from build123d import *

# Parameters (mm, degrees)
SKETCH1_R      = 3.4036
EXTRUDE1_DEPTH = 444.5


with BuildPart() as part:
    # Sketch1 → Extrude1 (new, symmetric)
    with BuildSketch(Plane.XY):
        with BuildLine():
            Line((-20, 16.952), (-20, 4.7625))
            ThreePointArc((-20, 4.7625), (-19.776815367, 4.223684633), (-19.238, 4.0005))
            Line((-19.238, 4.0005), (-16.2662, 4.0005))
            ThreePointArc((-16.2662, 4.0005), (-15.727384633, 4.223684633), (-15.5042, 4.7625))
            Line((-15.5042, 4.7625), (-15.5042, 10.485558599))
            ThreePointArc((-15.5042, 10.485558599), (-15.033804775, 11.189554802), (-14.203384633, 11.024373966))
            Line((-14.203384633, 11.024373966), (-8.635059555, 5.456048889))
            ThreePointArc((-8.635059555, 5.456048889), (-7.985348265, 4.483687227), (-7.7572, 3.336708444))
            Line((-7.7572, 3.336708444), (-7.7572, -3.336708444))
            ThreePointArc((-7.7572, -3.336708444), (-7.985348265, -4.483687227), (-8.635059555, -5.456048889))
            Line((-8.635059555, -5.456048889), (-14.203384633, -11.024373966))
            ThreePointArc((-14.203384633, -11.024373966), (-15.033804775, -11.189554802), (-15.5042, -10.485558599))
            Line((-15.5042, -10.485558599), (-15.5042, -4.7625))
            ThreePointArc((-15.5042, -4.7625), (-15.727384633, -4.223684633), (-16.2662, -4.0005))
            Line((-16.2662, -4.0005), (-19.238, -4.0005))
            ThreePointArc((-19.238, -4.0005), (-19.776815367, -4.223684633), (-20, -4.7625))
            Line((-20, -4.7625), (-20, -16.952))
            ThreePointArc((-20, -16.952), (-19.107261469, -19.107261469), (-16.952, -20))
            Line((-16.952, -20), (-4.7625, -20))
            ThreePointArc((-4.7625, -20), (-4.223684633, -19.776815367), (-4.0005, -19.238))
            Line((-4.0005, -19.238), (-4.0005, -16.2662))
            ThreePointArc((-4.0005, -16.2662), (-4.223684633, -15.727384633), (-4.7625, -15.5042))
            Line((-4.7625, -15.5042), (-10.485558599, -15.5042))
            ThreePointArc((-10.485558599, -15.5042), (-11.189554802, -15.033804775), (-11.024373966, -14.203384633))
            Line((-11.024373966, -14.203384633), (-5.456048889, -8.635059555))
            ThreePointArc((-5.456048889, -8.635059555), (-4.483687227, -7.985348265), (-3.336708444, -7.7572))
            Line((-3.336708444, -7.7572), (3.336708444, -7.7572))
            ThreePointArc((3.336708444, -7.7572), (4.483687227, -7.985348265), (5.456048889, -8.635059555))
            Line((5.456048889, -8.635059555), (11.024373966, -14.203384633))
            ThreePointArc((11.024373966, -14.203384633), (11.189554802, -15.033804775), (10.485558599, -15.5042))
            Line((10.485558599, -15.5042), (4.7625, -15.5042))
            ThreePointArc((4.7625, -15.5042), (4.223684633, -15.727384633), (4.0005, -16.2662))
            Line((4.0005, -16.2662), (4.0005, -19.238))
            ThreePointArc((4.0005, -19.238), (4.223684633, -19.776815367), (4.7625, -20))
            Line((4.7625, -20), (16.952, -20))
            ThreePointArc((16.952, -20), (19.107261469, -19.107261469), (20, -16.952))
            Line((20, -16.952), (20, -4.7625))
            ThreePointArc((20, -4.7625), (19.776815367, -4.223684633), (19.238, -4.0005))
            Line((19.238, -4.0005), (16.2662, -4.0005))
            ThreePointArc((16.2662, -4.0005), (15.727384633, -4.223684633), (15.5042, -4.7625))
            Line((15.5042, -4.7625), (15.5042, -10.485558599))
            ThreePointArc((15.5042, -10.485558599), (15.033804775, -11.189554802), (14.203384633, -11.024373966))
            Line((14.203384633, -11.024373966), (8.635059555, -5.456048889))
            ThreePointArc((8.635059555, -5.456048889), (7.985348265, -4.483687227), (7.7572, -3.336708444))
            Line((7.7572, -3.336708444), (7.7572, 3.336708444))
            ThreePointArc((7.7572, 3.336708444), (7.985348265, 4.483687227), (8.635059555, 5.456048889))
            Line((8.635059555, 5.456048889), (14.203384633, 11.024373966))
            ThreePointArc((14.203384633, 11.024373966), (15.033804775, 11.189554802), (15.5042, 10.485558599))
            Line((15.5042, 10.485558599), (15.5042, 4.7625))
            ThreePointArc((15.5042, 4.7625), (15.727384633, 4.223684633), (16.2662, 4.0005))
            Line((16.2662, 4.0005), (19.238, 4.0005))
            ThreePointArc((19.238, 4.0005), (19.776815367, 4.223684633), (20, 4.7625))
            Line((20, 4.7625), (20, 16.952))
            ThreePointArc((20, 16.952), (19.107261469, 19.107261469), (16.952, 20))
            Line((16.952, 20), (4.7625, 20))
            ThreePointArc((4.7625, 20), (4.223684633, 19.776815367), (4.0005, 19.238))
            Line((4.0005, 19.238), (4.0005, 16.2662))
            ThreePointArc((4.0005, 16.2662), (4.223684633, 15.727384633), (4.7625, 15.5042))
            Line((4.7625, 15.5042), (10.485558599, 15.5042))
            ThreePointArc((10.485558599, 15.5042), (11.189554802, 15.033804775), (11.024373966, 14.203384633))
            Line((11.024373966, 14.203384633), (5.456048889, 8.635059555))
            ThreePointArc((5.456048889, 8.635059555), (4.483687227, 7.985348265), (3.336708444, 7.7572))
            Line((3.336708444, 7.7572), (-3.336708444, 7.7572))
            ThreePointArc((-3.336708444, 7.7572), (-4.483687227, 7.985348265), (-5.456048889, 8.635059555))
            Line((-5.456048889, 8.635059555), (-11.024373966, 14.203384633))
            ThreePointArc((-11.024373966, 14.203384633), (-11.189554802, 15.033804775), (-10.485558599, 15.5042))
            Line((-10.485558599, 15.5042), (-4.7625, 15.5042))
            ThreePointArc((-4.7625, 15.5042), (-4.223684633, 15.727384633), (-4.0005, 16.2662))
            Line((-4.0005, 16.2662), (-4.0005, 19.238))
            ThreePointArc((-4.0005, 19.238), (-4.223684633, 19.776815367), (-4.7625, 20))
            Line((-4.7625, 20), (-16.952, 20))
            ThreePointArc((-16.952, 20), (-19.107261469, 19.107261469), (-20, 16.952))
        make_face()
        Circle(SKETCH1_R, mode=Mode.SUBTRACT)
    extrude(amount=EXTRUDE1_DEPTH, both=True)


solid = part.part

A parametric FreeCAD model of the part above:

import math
import FreeCAD as App
import Part
import Sketcher

V = App.Vector
Q = App.Units.Quantity

doc = App.newDocument("Part")
body = doc.addObject("PartDesign::Body", "Body")

# Sketch on XY plane
sketch1 = doc.addObject("Sketcher::SketchObject", "Sketch")
body.addObject(sketch1)
sketch1.AttachmentSupport = (doc.XY_Plane, [""])
sketch1.MapMode = "FlatFace"
sketch1.addGeometry([
    Part.LineSegment(V(-20, 16.952, 0), V(-20, 4.7625, 0)),  # 0
    Part.ArcOfCircle(Part.Circle(V(-19.238, 4.7625, 0), V(0, 0, 1), 0.762), math.radians(-180), math.radians(-90)),  # 1
    Part.LineSegment(V(-19.238, 4.0005, 0), V(-16.2662, 4.0005, 0)),  # 2
    Part.ArcOfCircle(Part.Circle(V(-16.2662, 4.7625, 0), V(0, 0, 1), 0.762), math.radians(-90), math.radians(0)),  # 3
    Part.LineSegment(V(-15.5042, 4.7625, 0), V(-15.5042, 10.485559, 0)),  # 4
    Part.ArcOfCircle(Part.Circle(V(-14.7422, 10.485559, 0), V(0, 0, 1), 0.762), math.radians(45), math.radians(180)),  # 5
    Part.LineSegment(V(-14.203385, 11.024374, 0), V(-8.63506, 5.456049, 0)),  # 6
    Part.ArcOfCircle(Part.Circle(V(-10.7544, 3.336708, 0), V(0, 0, 1), 2.9972), math.radians(0), math.radians(45)),  # 7
    Part.LineSegment(V(-7.7572, 3.336708, 0), V(-7.7572, -3.336708, 0)),  # 8
    Part.ArcOfCircle(Part.Circle(V(-10.7544, -3.336708, 0), V(0, 0, 1), 2.9972), math.radians(-45), math.radians(0)),  # 9
    Part.LineSegment(V(-8.63506, -5.456049, 0), V(-14.203385, -11.024374, 0)),  # 10
    Part.ArcOfCircle(Part.Circle(V(-14.7422, -10.485559, 0), V(0, 0, 1), 0.762), math.radians(-180), math.radians(-45)),  # 11
    Part.LineSegment(V(-15.5042, -10.485559, 0), V(-15.5042, -4.7625, 0)),  # 12
    Part.ArcOfCircle(Part.Circle(V(-16.2662, -4.7625, 0), V(0, 0, 1), 0.762), math.radians(0), math.radians(90)),  # 13
    Part.LineSegment(V(-16.2662, -4.0005, 0), V(-19.238, -4.0005, 0)),  # 14
    Part.ArcOfCircle(Part.Circle(V(-19.238, -4.7625, 0), V(0, 0, 1), 0.762), math.radians(90), math.radians(180)),  # 15
    Part.LineSegment(V(-20, -4.7625, 0), V(-20, -16.952, 0)),  # 16
    Part.ArcOfCircle(Part.Circle(V(-16.952, -16.952, 0), V(0, 0, 1), 3.048), math.radians(180), math.radians(270)),  # 17
    Part.LineSegment(V(-16.952, -20, 0), V(-4.7625, -20, 0)),  # 18
    Part.ArcOfCircle(Part.Circle(V(-4.7625, -19.238, 0), V(0, 0, 1), 0.762), math.radians(-90), math.radians(0)),  # 19
    Part.LineSegment(V(-4.0005, -19.238, 0), V(-4.0005, -16.2662, 0)),  # 20
    Part.ArcOfCircle(Part.Circle(V(-4.7625, -16.2662, 0), V(0, 0, 1), 0.762), math.radians(0), math.radians(90)),  # 21
    Part.LineSegment(V(-4.7625, -15.5042, 0), V(-10.485559, -15.5042, 0)),  # 22
    Part.ArcOfCircle(Part.Circle(V(-10.485559, -14.7422, 0), V(0, 0, 1), 0.762), math.radians(135), math.radians(270)),  # 23
    Part.LineSegment(V(-11.024374, -14.203385, 0), V(-5.456049, -8.63506, 0)),  # 24
    Part.ArcOfCircle(Part.Circle(V(-3.336708, -10.7544, 0), V(0, 0, 1), 2.9972), math.radians(90), math.radians(135)),  # 25
    Part.LineSegment(V(-3.336708, -7.7572, 0), V(3.336708, -7.7572, 0)),  # 26
    Part.ArcOfCircle(Part.Circle(V(3.336708, -10.7544, 0), V(0, 0, 1), 2.9972), math.radians(45), math.radians(90)),  # 27
    Part.LineSegment(V(5.456049, -8.63506, 0), V(11.024374, -14.203385, 0)),  # 28
    Part.ArcOfCircle(Part.Circle(V(10.485559, -14.7422, 0), V(0, 0, 1), 0.762), math.radians(-90), math.radians(45)),  # 29
    Part.LineSegment(V(10.485559, -15.5042, 0), V(4.7625, -15.5042, 0)),  # 30
    Part.ArcOfCircle(Part.Circle(V(4.7625, -16.2662, 0), V(0, 0, 1), 0.762), math.radians(90), math.radians(180)),  # 31
    Part.LineSegment(V(4.0005, -16.2662, 0), V(4.0005, -19.238, 0)),  # 32
    Part.ArcOfCircle(Part.Circle(V(4.7625, -19.238, 0), V(0, 0, 1), 0.762), math.radians(-180), math.radians(-90)),  # 33
    Part.LineSegment(V(4.7625, -20, 0), V(16.952, -20, 0)),  # 34
    Part.ArcOfCircle(Part.Circle(V(16.952, -16.952, 0), V(0, 0, 1), 3.048), math.radians(-90), math.radians(0)),  # 35
    Part.LineSegment(V(20, -16.952, 0), V(20, -4.7625, 0)),  # 36
    Part.ArcOfCircle(Part.Circle(V(19.238, -4.7625, 0), V(0, 0, 1), 0.762), math.radians(0), math.radians(90)),  # 37
    Part.LineSegment(V(19.238, -4.0005, 0), V(16.2662, -4.0005, 0)),  # 38
    Part.ArcOfCircle(Part.Circle(V(16.2662, -4.7625, 0), V(0, 0, 1), 0.762), math.radians(90), math.radians(180)),  # 39
    Part.LineSegment(V(15.5042, -4.7625, 0), V(15.5042, -10.485559, 0)),  # 40
    Part.ArcOfCircle(Part.Circle(V(14.7422, -10.485559, 0), V(0, 0, 1), 0.762), math.radians(-135), math.radians(0)),  # 41
    Part.LineSegment(V(14.203385, -11.024374, 0), V(8.63506, -5.456049, 0)),  # 42
    Part.ArcOfCircle(Part.Circle(V(10.7544, -3.336708, 0), V(0, 0, 1), 2.9972), math.radians(-180), math.radians(-135)),  # 43
    Part.LineSegment(V(7.7572, -3.336708, 0), V(7.7572, 3.336708, 0)),  # 44
    Part.ArcOfCircle(Part.Circle(V(10.7544, 3.336708, 0), V(0, 0, 1), 2.9972), math.radians(135), math.radians(180)),  # 45
    Part.LineSegment(V(8.63506, 5.456049, 0), V(14.203385, 11.024374, 0)),  # 46
    Part.ArcOfCircle(Part.Circle(V(14.7422, 10.485559, 0), V(0, 0, 1), 0.762), math.radians(0), math.radians(135)),  # 47
    Part.LineSegment(V(15.5042, 10.485559, 0), V(15.5042, 4.7625, 0)),  # 48
    Part.ArcOfCircle(Part.Circle(V(16.2662, 4.7625, 0), V(0, 0, 1), 0.762), math.radians(-180), math.radians(-90)),  # 49
    Part.LineSegment(V(16.2662, 4.0005, 0), V(19.238, 4.0005, 0)),  # 50
    Part.ArcOfCircle(Part.Circle(V(19.238, 4.7625, 0), V(0, 0, 1), 0.762), math.radians(-90), math.radians(0)),  # 51
    Part.LineSegment(V(20, 4.7625, 0), V(20, 16.952, 0)),  # 52
    Part.ArcOfCircle(Part.Circle(V(16.952, 16.952, 0), V(0, 0, 1), 3.048), math.radians(0), math.radians(90)),  # 53
    Part.LineSegment(V(16.952, 20, 0), V(4.7625, 20, 0)),  # 54
    Part.ArcOfCircle(Part.Circle(V(4.7625, 19.238, 0), V(0, 0, 1), 0.762), math.radians(90), math.radians(180)),  # 55
    Part.LineSegment(V(4.0005, 19.238, 0), V(4.0005, 16.2662, 0)),  # 56
    Part.ArcOfCircle(Part.Circle(V(4.7625, 16.2662, 0), V(0, 0, 1), 0.762), math.radians(-180), math.radians(-90)),  # 57
    Part.LineSegment(V(4.7625, 15.5042, 0), V(10.485559, 15.5042, 0)),  # 58
    Part.ArcOfCircle(Part.Circle(V(10.485559, 14.7422, 0), V(0, 0, 1), 0.762), math.radians(-45), math.radians(90)),  # 59
    Part.LineSegment(V(11.024374, 14.203385, 0), V(5.456049, 8.63506, 0)),  # 60
    Part.ArcOfCircle(Part.Circle(V(3.336708, 10.7544, 0), V(0, 0, 1), 2.9972), math.radians(-90), math.radians(-45)),  # 61
    Part.LineSegment(V(3.336708, 7.7572, 0), V(-3.336708, 7.7572, 0)),  # 62
    Part.ArcOfCircle(Part.Circle(V(-3.336708, 10.7544, 0), V(0, 0, 1), 2.9972), math.radians(-135), math.radians(-90)),  # 63
    Part.LineSegment(V(-5.456049, 8.63506, 0), V(-11.024374, 14.203385, 0)),  # 64
    Part.ArcOfCircle(Part.Circle(V(-10.485559, 14.7422, 0), V(0, 0, 1), 0.762), math.radians(90), math.radians(225)),  # 65
    Part.LineSegment(V(-10.485559, 15.5042, 0), V(-4.7625, 15.5042, 0)),  # 66
    Part.ArcOfCircle(Part.Circle(V(-4.7625, 16.2662, 0), V(0, 0, 1), 0.762), math.radians(-90), math.radians(0)),  # 67
    Part.LineSegment(V(-4.0005, 16.2662, 0), V(-4.0005, 19.238, 0)),  # 68
    Part.ArcOfCircle(Part.Circle(V(-4.7625, 19.238, 0), V(0, 0, 1), 0.762), math.radians(0), math.radians(90)),  # 69
    Part.LineSegment(V(-4.7625, 20, 0), V(-16.952, 20, 0)),  # 70
    Part.ArcOfCircle(Part.Circle(V(-16.952, 16.952, 0), V(0, 0, 1), 3.048), math.radians(90), math.radians(180)),  # 71
    Part.Circle(V(0, 0, 0), V(0, 0, 1), 3.4036),  # 72
], False)
sketch1.addConstraint([
    Sketcher.Constraint("Tangent", 0, 2, 1, 1),
    Sketcher.Constraint("Tangent", 1, 2, 2, 1),
    Sketcher.Constraint("Tangent", 2, 2, 3, 1),
    Sketcher.Constraint("Tangent", 3, 2, 4, 1),
    Sketcher.Constraint("Tangent", 4, 2, 5, 2),
    Sketcher.Constraint("Tangent", 5, 1, 6, 1),
    Sketcher.Constraint("Tangent", 6, 2, 7, 2),
    Sketcher.Constraint("Tangent", 7, 1, 8, 1),
    Sketcher.Constraint("Tangent", 8, 2, 9, 2),
    Sketcher.Constraint("Tangent", 9, 1, 10, 1),
    Sketcher.Constraint("Tangent", 10, 2, 11, 2),
    Sketcher.Constraint("Tangent", 11, 1, 12, 1),
    Sketcher.Constraint("Tangent", 12, 2, 13, 1),
    Sketcher.Constraint("Tangent", 13, 2, 14, 1),
    Sketcher.Constraint("Tangent", 14, 2, 15, 1),
    Sketcher.Constraint("Tangent", 15, 2, 16, 1),
    Sketcher.Constraint("Tangent", 16, 2, 17, 1),
    Sketcher.Constraint("Tangent", 17, 2, 18, 1),
    Sketcher.Constraint("Tangent", 18, 2, 19, 1),
    Sketcher.Constraint("Tangent", 19, 2, 20, 1),
    Sketcher.Constraint("Tangent", 20, 2, 21, 1),
    Sketcher.Constraint("Tangent", 21, 2, 22, 1),
    Sketcher.Constraint("Tangent", 22, 2, 23, 2),
    Sketcher.Constraint("Tangent", 23, 1, 24, 1),
    Sketcher.Constraint("Tangent", 24, 2, 25, 2),
    Sketcher.Constraint("Tangent", 25, 1, 26, 1),
    Sketcher.Constraint("Tangent", 26, 2, 27, 2),
    Sketcher.Constraint("Tangent", 27, 1, 28, 1),
    Sketcher.Constraint("Tangent", 28, 2, 29, 2),
    Sketcher.Constraint("Tangent", 29, 1, 30, 1),
    Sketcher.Constraint("Tangent", 30, 2, 31, 1),
    Sketcher.Constraint("Tangent", 31, 2, 32, 1),
    Sketcher.Constraint("Tangent", 32, 2, 33, 1),
    Sketcher.Constraint("Tangent", 33, 2, 34, 1),
    Sketcher.Constraint("Tangent", 34, 2, 35, 1),
    Sketcher.Constraint("Tangent", 35, 2, 36, 1),
    Sketcher.Constraint("Tangent", 36, 2, 37, 1),
    Sketcher.Constraint("Tangent", 37, 2, 38, 1),
    Sketcher.Constraint("Tangent", 38, 2, 39, 1),
    Sketcher.Constraint("Tangent", 39, 2, 40, 1),
    Sketcher.Constraint("Tangent", 40, 2, 41, 2),
    Sketcher.Constraint("Tangent", 41, 1, 42, 1),
    Sketcher.Constraint("Tangent", 42, 2, 43, 2),
    Sketcher.Constraint("Tangent", 43, 1, 44, 1),
    Sketcher.Constraint("Tangent", 44, 2, 45, 2),
    Sketcher.Constraint("Tangent", 45, 1, 46, 1),
    Sketcher.Constraint("Tangent", 46, 2, 47, 2),
    Sketcher.Constraint("Tangent", 47, 1, 48, 1),
    Sketcher.Constraint("Tangent", 48, 2, 49, 1),
    Sketcher.Constraint("Tangent", 49, 2, 50, 1),
    Sketcher.Constraint("Tangent", 50, 2, 51, 1),
    Sketcher.Constraint("Tangent", 51, 2, 52, 1),
    Sketcher.Constraint("Tangent", 52, 2, 53, 1),
    Sketcher.Constraint("Tangent", 53, 2, 54, 1),
    Sketcher.Constraint("Tangent", 54, 2, 55, 1),
    Sketcher.Constraint("Tangent", 55, 2, 56, 1),
    Sketcher.Constraint("Tangent", 56, 2, 57, 1),
    Sketcher.Constraint("Tangent", 57, 2, 58, 1),
    Sketcher.Constraint("Tangent", 58, 2, 59, 2),
    Sketcher.Constraint("Tangent", 59, 1, 60, 1),
    Sketcher.Constraint("Tangent", 60, 2, 61, 2),
    Sketcher.Constraint("Tangent", 61, 1, 62, 1),
    Sketcher.Constraint("Tangent", 62, 2, 63, 2),
    Sketcher.Constraint("Tangent", 63, 1, 64, 1),
    Sketcher.Constraint("Tangent", 64, 2, 65, 2),
    Sketcher.Constraint("Tangent", 65, 1, 66, 1),
    Sketcher.Constraint("Tangent", 66, 2, 67, 1),
    Sketcher.Constraint("Tangent", 67, 2, 68, 1),
    Sketcher.Constraint("Tangent", 68, 2, 69, 1),
    Sketcher.Constraint("Tangent", 69, 2, 70, 1),
    Sketcher.Constraint("Tangent", 70, 2, 71, 1),
    Sketcher.Constraint("Tangent", 71, 2, 0, 1),
    Sketcher.Constraint("Vertical", 0),
    Sketcher.Constraint("Horizontal", 2),
    Sketcher.Constraint("Vertical", 4),
    Sketcher.Constraint("Vertical", 8),
    Sketcher.Constraint("Vertical", 12),
    Sketcher.Constraint("Horizontal", 14),
    Sketcher.Constraint("Vertical", 16),
    Sketcher.Constraint("Horizontal", 18),
    Sketcher.Constraint("Vertical", 20),
    Sketcher.Constraint("Horizontal", 22),
    Sketcher.Constraint("Horizontal", 26),
    Sketcher.Constraint("Horizontal", 30),
    Sketcher.Constraint("Vertical", 32),
    Sketcher.Constraint("Horizontal", 34),
    Sketcher.Constraint("Vertical", 36),
    Sketcher.Constraint("Horizontal", 38),
    Sketcher.Constraint("Vertical", 40),
    Sketcher.Constraint("Vertical", 44),
    Sketcher.Constraint("Vertical", 48),
    Sketcher.Constraint("Horizontal", 50),
    Sketcher.Constraint("Vertical", 52),
    Sketcher.Constraint("Horizontal", 54),
    Sketcher.Constraint("Vertical", 56),
    Sketcher.Constraint("Horizontal", 58),
    Sketcher.Constraint("Horizontal", 62),
    Sketcher.Constraint("Horizontal", 66),
    Sketcher.Constraint("Vertical", 68),
    Sketcher.Constraint("Horizontal", 70),
    Sketcher.Constraint("Coincident", 72, 3, -1, 1),
    Sketcher.Constraint("Equal", 1, 3),
    Sketcher.Constraint("Equal", 3, 5),
    Sketcher.Constraint("Equal", 7, 9),
    Sketcher.Constraint("Equal", 5, 11),
    Sketcher.Constraint("Equal", 11, 13),
    Sketcher.Constraint("Equal", 13, 15),
    Sketcher.Constraint("Equal", 15, 19),
    Sketcher.Constraint("Equal", 19, 21),
    Sketcher.Constraint("Equal", 21, 23),
    Sketcher.Constraint("Equal", 9, 25),
    Sketcher.Constraint("Equal", 25, 27),
    Sketcher.Constraint("Equal", 23, 29),
    Sketcher.Constraint("Equal", 29, 31),
    Sketcher.Constraint("Equal", 31, 33),
    Sketcher.Constraint("Equal", 17, 35),
    Sketcher.Constraint("Equal", 33, 37),
    Sketcher.Constraint("Equal", 37, 39),
    Sketcher.Constraint("Equal", 39, 41),
    Sketcher.Constraint("Equal", 27, 43),
    Sketcher.Constraint("Equal", 43, 45),
    Sketcher.Constraint("Equal", 41, 47),
    Sketcher.Constraint("Equal", 47, 49),
    Sketcher.Constraint("Equal", 49, 51),
    Sketcher.Constraint("Equal", 35, 53),
    Sketcher.Constraint("Equal", 51, 55),
    Sketcher.Constraint("Equal", 55, 57),
    Sketcher.Constraint("Equal", 57, 59),
    Sketcher.Constraint("Equal", 45, 61),
    Sketcher.Constraint("Equal", 61, 63),
    Sketcher.Constraint("Equal", 59, 65),
    Sketcher.Constraint("Equal", 65, 67),
    Sketcher.Constraint("Equal", 67, 69),
    Sketcher.Constraint("Equal", 53, 71),
    Sketcher.Constraint("Symmetric", 1, 3, 37, 3, -1, 1),
    Sketcher.Constraint("Symmetric", 5, 3, 41, 3, -1, 1),
    Sketcher.Constraint("Symmetric", 7, 3, 43, 3, -1, 1),
    Sketcher.Constraint("Symmetric", 11, 3, 47, 3, -1, 1),
    Sketcher.Constraint("Symmetric", 15, 3, 51, 3, -1, 1),
    Sketcher.Constraint("Symmetric", 19, 3, 55, 3, -1, 1),
    Sketcher.Constraint("Symmetric", 23, 3, 59, 3, -1, 1),
    Sketcher.Constraint("Symmetric", 25, 3, 61, 3, -1, 1),
    Sketcher.Constraint("Symmetric", 29, 3, 65, 3, -1, 1),
    Sketcher.Constraint("Symmetric", 33, 3, 69, 3, -1, 1),
    Sketcher.Constraint("Symmetric", 23, 3, 29, 3, -2),
    Sketcher.Constraint("Symmetric", 19, 3, 33, 3, -2),
    Sketcher.Constraint("Symmetric", 15, 3, 37, 3, -2),
    Sketcher.Constraint("Symmetric", 11, 3, 41, 3, -2),
    Sketcher.Constraint("Perpendicular", 6, 10),
    Sketcher.Constraint("Parallel", 10, 24),
    Sketcher.Constraint("Perpendicular", 24, 28),
    Sketcher.Constraint("Perpendicular", 42, 46),
    Sketcher.Constraint("Perpendicular", 60, 64),
    Sketcher.Constraint("Horizontal", 9, 3, 43, 3),
    Sketcher.Constraint("Equal", 70, 0),
    Sketcher.Constraint("Equal", 66, 4),
    Sketcher.Constraint("Equal", 62, 8),
    Sketcher.Constraint("Equal", 50, 20),
    Sketcher.Constraint("Equal", 10, 24),
    Sketcher.Constraint("Radius", 1, Q("0.03 in")),
    Sketcher.Constraint("Radius", 17, Q("0.12 in")),
    Sketcher.Constraint("Diameter", 72, Q("0.268 in")),
    Sketcher.Constraint("Radius", 7, Q("0.118 in")),
    Sketcher.Constraint("DistanceX", 2, 1, 2, 2, Q("0.117 in")),
    Sketcher.Constraint("DistanceY", -1, 1, 1, 3, Q("0.1875 in")),
    Sketcher.Constraint("DistanceX", 18, 1, 18, 2, 12.1895),
    Sketcher.Constraint("Distance", 6, 7.874801),
    Sketcher.Constraint("DistanceX", 22, 2, 22, 1, 5.723059),
])
pad1 = doc.addObject("PartDesign::Pad", "Pad")
body.addObject(pad1)
pad1.Profile = sketch1
pad1.Length = Q("35 in")
pad1.Midplane = True

doc.recompute()
